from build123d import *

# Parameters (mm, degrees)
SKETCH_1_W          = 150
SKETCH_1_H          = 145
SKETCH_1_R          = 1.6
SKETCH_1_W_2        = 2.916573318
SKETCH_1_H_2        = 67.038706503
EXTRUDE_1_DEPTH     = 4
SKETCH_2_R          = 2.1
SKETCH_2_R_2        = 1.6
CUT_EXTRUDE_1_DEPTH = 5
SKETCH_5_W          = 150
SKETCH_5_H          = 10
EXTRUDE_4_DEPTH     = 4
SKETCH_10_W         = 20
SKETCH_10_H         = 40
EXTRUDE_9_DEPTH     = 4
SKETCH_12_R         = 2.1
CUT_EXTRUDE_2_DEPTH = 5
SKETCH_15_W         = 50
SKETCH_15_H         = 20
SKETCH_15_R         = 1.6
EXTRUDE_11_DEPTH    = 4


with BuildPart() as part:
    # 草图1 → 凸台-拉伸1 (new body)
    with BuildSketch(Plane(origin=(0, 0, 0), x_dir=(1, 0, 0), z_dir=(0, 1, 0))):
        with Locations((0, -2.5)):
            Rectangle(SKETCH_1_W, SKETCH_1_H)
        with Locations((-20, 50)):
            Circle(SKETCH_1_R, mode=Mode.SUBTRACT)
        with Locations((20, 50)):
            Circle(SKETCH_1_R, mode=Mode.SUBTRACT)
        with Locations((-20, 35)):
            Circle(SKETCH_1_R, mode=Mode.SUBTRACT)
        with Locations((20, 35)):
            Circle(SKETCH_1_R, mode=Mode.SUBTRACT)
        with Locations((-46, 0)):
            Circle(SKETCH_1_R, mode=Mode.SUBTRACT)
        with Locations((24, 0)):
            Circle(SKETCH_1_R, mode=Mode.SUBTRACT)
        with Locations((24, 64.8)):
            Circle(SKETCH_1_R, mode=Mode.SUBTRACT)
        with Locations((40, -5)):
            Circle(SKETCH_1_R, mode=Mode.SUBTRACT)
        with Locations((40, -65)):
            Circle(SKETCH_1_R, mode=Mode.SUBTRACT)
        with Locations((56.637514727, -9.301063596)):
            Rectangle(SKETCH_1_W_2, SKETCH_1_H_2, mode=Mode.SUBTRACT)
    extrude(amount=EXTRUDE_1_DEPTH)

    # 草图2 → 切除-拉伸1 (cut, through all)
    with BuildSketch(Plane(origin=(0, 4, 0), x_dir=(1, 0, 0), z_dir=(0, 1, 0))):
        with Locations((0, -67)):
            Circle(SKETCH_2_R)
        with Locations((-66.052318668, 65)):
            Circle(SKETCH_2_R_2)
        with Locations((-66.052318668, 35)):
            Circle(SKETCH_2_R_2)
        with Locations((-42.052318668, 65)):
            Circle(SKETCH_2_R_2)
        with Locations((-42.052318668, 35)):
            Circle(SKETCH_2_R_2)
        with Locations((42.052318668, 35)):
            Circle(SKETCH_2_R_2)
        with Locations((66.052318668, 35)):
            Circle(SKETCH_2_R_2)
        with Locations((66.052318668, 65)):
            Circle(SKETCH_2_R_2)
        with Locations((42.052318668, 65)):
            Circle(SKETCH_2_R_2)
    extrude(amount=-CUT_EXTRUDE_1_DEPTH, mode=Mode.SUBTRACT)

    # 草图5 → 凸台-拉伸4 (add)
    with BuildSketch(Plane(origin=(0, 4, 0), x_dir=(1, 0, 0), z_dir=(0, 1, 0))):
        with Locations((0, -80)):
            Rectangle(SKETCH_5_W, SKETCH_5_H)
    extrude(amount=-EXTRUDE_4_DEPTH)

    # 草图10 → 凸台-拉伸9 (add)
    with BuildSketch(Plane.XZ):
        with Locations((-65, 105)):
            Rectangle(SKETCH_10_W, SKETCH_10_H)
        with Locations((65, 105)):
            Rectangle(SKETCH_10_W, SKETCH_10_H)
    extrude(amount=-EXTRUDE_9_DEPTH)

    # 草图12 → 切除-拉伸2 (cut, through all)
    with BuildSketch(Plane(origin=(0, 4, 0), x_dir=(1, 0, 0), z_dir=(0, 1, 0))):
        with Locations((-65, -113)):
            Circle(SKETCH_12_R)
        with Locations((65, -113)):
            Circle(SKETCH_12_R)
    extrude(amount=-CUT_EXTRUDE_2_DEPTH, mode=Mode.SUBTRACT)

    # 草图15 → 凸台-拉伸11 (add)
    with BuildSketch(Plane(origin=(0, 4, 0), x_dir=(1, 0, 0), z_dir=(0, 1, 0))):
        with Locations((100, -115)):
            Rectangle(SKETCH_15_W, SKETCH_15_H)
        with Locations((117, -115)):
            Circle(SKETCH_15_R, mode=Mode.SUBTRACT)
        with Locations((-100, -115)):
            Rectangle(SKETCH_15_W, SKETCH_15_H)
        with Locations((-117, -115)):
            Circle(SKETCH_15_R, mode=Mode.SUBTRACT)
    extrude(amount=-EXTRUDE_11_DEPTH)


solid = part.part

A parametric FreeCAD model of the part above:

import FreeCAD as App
import Part
import Sketcher

doc = App.newDocument("Part")
body = doc.addObject("PartDesign::Body", "Body")

# Sketch on XZ plane
sketch1 = body.newObject("Sketcher::SketchObject", "Sketch")
sketch1.AttachmentSupport = (doc.getObject("XZ_Plane"), [""])
sketch1.MapMode = "FlatFace"
sketch1.addGeometry(Part.LineSegment(App.Vector(-75, -70, 0), App.Vector(-75, 75, 0)), False)
sketch1.addGeometry(Part.LineSegment(App.Vector(-75, 75, 0), App.Vector(75, 75, 0)), False)
sketch1.addGeometry(Part.LineSegment(App.Vector(75, 75, 0), App.Vector(75, -70, 0)), False)
sketch1.addGeometry(Part.LineSegment(App.Vector(75, -70, 0), App.Vector(-75, -70, 0)), False)
sketch1.addGeometry(Part.Circle(App.Vector(40, 65, 0), App.Vector(0, 0, 1), 1.6), False)
sketch1.addGeometry(Part.Circle(App.Vector(40, 5, 0), App.Vector(0, 0, 1), 1.6), False)
sketch1.addGeometry(Part.LineSegment(App.Vector(58.1, 42.8, 0), App.Vector(55.2, 42.8, 0)), False)
sketch1.addGeometry(Part.LineSegment(App.Vector(55.2, 42.8, 0), App.Vector(55.2, -24.2, 0)), False)
sketch1.addGeometry(Part.LineSegment(App.Vector(55.2, -24.2, 0), App.Vector(58.1, -24.2, 0)), False)
sketch1.addGeometry(Part.LineSegment(App.Vector(58.1, -24.2, 0), App.Vector(58.1, 42.8, 0)), False)
sketch1.addGeometry(Part.Circle(App.Vector(-46, 0, 0), App.Vector(0, 0, 1), 1.6), False)
sketch1.addGeometry(Part.Circle(App.Vector(-20, -35, 0), App.Vector(0, 0, 1), 1.6), False)
sketch1.addGeometry(Part.Circle(App.Vector(-20, -50, 0), App.Vector(0, 0, 1), 1.6), False)
sketch1.addGeometry(Part.Circle(App.Vector(24, 0, 0), App.Vector(0, 0, 1), 1.6), False)
sketch1.addGeometry(Part.Circle(App.Vector(20, -35, 0), App.Vector(0, 0, 1), 1.6), False)
sketch1.addGeometry(Part.Circle(App.Vector(20, -50, 0), App.Vector(0, 0, 1), 1.6), False)
sketch1.addGeometry(Part.Circle(App.Vector(24, -64.8, 0), App.Vector(0, 0, 1), 1.6), False)
sketch1.addConstraint(Sketcher.Constraint("Coincident", 0, 2, 1, 1))
sketch1.addConstraint(Sketcher.Constraint("Coincident", 1, 2, 2, 1))
sketch1.addConstraint(Sketcher.Constraint("Coincident", 2, 2, 3, 1))
sketch1.addConstraint(Sketcher.Constraint("Coincident", 3, 2, 0, 1))
sketch1.addConstraint(Sketcher.Constraint("Coincident", 6, 2, 7, 1))
sketch1.addConstraint(Sketcher.Constraint("Coincident", 7, 2, 8, 1))
sketch1.addConstraint(Sketcher.Constraint("Coincident", 8, 2, 9, 1))
sketch1.addConstraint(Sketcher.Constraint("Coincident", 9, 2, 6, 1))
sketch1.addConstraint(Sketcher.Constraint("Vertical", 0))
sketch1.addConstraint(Sketcher.Constraint("Horizontal", 1))
sketch1.addConstraint(Sketcher.Constraint("Vertical", 2))
sketch1.addConstraint(Sketcher.Constraint("Horizontal", 3))
sketch1.addConstraint(Sketcher.Constraint("Horizontal", 6))
sketch1.addConstraint(Sketcher.Constraint("Vertical", 7))
sketch1.addConstraint(Sketcher.Constraint("Horizontal", 8))
sketch1.addConstraint(Sketcher.Constraint("Vertical", 9))
sketch1.addConstraint(Sketcher.Constraint("Equal", 4, 5))
sketch1.addConstraint(Sketcher.Constraint("Equal", 5, 10))
sketch1.addConstraint(Sketcher.Constraint("Equal", 10, 11))
sketch1.addConstraint(Sketcher.Constraint("Equal", 11, 12))
sketch1.addConstraint(Sketcher.Constraint("Equal", 12, 13))
sketch1.addConstraint(Sketcher.Constraint("Equal", 13, 14))
sketch1.addConstraint(Sketcher.Constraint("Equal", 14, 15))
sketch1.addConstraint(Sketcher.Constraint("Equal", 15, 16))
sketch1.addConstraint(Sketcher.Constraint("Symmetric", 11, 3, 14, 3, -2))
sketch1.addConstraint(Sketcher.Constraint("Symmetric", 12, 3, 15, 3, -2))
sketch1.addConstraint(Sketcher.Constraint("PointOnObject", 10, 3, -1))
sketch1.addConstraint(Sketcher.Constraint("PointOnObject", 13, 3, -1))
sketch1.addConstraint(Sketcher.Constraint("Vertical", 4, 3, 5, 3))
sketch1.addConstraint(Sketcher.Constraint("Vertical", 11, 3, 12, 3))
sketch1.addConstraint(Sketcher.Constraint("Vertical", 13, 3, 16, 3))
sketch1.addConstraint(Sketcher.Constraint("Diameter", 4, 3.2))
sketch1.addConstraint(Sketcher.Constraint("DistanceX", 1, 1, 1, 2, 150.0))
sketch1.addConstraint(Sketcher.Constraint("DistanceY", 0, 1, 0, 2, 145.0))
sketch1.addConstraint(Sketcher.Constraint("DistanceX", -1, 1, 4, 3, 40.0))
sketch1.addConstraint(Sketcher.Constraint("DistanceY", -1, 1, 4, 3, 65.0))
sketch1.addConstraint(Sketcher.Constraint("DistanceY", -1, 1, 5, 3, 5.0))
sketch1.addConstraint(Sketcher.Constraint("DistanceX", 10, 3, -1, 1, 46.0))
sketch1.addConstraint(Sketcher.Constraint("DistanceX", 11, 3, -1, 1, 20.0))
sketch1.addConstraint(Sketcher.Constraint("DistanceY", 11, 3, -1, 1, 35.0))
sketch1.addConstraint(Sketcher.Constraint("DistanceY", 12, 3, -1, 1, 50.0))
sketch1.addConstraint(Sketcher.Constraint("DistanceX", -1, 1, 13, 3, 24.0))
sketch1.addConstraint(Sketcher.Constraint("DistanceX", 0, 2, -1, 1, 75.0))
sketch1.addConstraint(Sketcher.Constraint("DistanceY", -1, 1, 0, 2, 75.0))
sketch1.addConstraint(Sketcher.Constraint("DistanceY", 16, 3, -1, 1, 64.8))
sketch1.addConstraint(Sketcher.Constraint("DistanceX", -1, 1, 8, 2, 58.095801))
sketch1.addConstraint(Sketcher.Constraint("DistanceX", 6, 2, 6, 1, 2.916573))
sketch1.addConstraint(Sketcher.Constraint("DistanceY", 7, 2, 7, 1, 67.038707))
sketch1.addConstraint(Sketcher.Constraint("DistanceY", 7, 2, -1, 1, 24.21829))
pad1 = body.newObject("PartDesign::Pad", "Pad")
pad1.Profile = sketch1
pad1.Length = 4
pad1.Reversed = True

# Sketch on XZ plane
sketch2 = body.newObject("Sketcher::SketchObject", "Sketch001")
sketch2.AttachmentSupport = (doc.getObject("XZ_Plane"), [""])
sketch2.MapMode = "FlatFace"
sketch2.AttachmentOffset = App.Placement(App.Vector(0, 0, -4), App.Rotation())
sketch2.addGeometry(Part.Circle(App.Vector(0, 67, 0), App.Vector(0, 0, 1), 2.1), False)
sketch2.addGeometry(Part.Circle(App.Vector(-66.1, -65, 0), App.Vector(0, 0, 1), 1.6), False)
sketch2.addGeometry(Part.Circle(App.Vector(-66.1, -35, 0), App.Vector(0, 0, 1), 1.6), False)
sketch2.addGeometry(Part.Circle(App.Vector(-42.1, -65, 0), App.Vector(0, 0, 1), 1.6), False)
sketch2.addGeometry(Part.Circle(App.Vector(-42.1, -35, 0), App.Vector(0, 0, 1), 1.6), False)
sketch2.addGeometry(Part.Circle(App.Vector(42.1, -35, 0), App.Vector(0, 0, 1), 1.6), False)
sketch2.addGeometry(Part.Circle(App.Vector(66.1, -35, 0), App.Vector(0, 0, 1), 1.6), False)
sketch2.addGeometry(Part.Circle(App.Vector(66.1, -65, 0), App.Vector(0, 0, 1), 1.6), False)
sketch2.addGeometry(Part.Circle(App.Vector(42.1, -65, 0), App.Vector(0, 0, 1), 1.6), False)
sketch2.addConstraint(Sketcher.Constraint("Equal", 1, 2))
sketch2.addConstraint(Sketcher.Constraint("Equal", 2, 3))
sketch2.addConstraint(Sketcher.Constraint("Equal", 3, 4))
sketch2.addConstraint(Sketcher.Constraint("Equal", 4, 5))
sketch2.addConstraint(Sketcher.Constraint("Equal", 5, 6))
sketch2.addConstraint(Sketcher.Constraint("Equal", 6, 7))
sketch2.addConstraint(Sketcher.Constraint("Equal", 7, 8))
sketch2.addConstraint(Sketcher.Constraint("Symmetric", 4, 3, 5, 3, -2))
sketch2.addConstraint(Sketcher.Constraint("Symmetric", 2, 3, 6, 3, -2))
sketch2.addConstraint(Sketcher.Constraint("Symmetric", 1, 3, 7, 3, -2))
sketch2.addConstraint(Sketcher.Constraint("Symmetric", 3, 3, 8, 3, -2))
sketch2.addConstraint(Sketcher.Constraint("PointOnObject", 0, 3, -2))
sketch2.addConstraint(Sketcher.Constraint("Horizontal", 1, 3, 3, 3))
sketch2.addConstraint(Sketcher.Constraint("Horizontal", 2, 3, 4, 3))
sketch2.addConstraint(Sketcher.Constraint("Vertical", 1, 3, 2, 3))
sketch2.addConstraint(Sketcher.Constraint("Vertical", 3, 3, 4, 3))
sketch2.addConstraint(Sketcher.Constraint("Diameter", 0, 4.2))
sketch2.addConstraint(Sketcher.Constraint("Diameter", 1, 3.2))
sketch2.addConstraint(Sketcher.Constraint("DistanceY", -1, 1, 0, 3, 67.0))
sketch2.addConstraint(Sketcher.Constraint("DistanceY", 1, 3, -1, 1, 65.0))
sketch2.addConstraint(Sketcher.Constraint("DistanceY", 2, 3, -1, 1, 35.0))
sketch2.addConstraint(Sketcher.Constraint("DistanceX", 1, 3, 3, 3, 24.0))
sketch2.addConstraint(Sketcher.Constraint("DistanceX", 1, 3, -1, 1, 66.052319))
pocket1 = body.newObject("PartDesign::Pocket", "Pocket")
pocket1.Profile = sketch2
pocket1.Type = "ThroughAll"
pocket1.Reversed = True

# Sketch on XZ plane
sketch3 = body.newObject("Sketcher::SketchObject", "Sketch002")
sketch3.AttachmentSupport = (doc.getObject("XZ_Plane"), [""])
sketch3.MapMode = "FlatFace"
sketch3.AttachmentOffset = App.Placement(App.Vector(0, 0, -4), App.Rotation())
sketch3.addGeometry(Part.LineSegment(App.Vector(-75, 75, 0), App.Vector(-75, 85, 0)), False)
sketch3.addGeometry(Part.LineSegment(App.Vector(-75, 85, 0), App.Vector(75, 85, 0)), False)
sketch3.addGeometry(Part.LineSegment(App.Vector(75, 85, 0), App.Vector(75, 75, 0)), False)
sketch3.addGeometry(Part.LineSegment(App.Vector(75, 75, 0), App.Vector(-75, 75, 0)), False)
sketch3.addConstraint(Sketcher.Constraint("Coincident", 0, 2, 1, 1))
sketch3.addConstraint(Sketcher.Constraint("Coincident", 1, 2, 2, 1))
sketch3.addConstraint(Sketcher.Constraint("Coincident", 2, 2, 3, 1))
sketch3.addConstraint(Sketcher.Constraint("Coincident", 3, 2, 0, 1))
sketch3.addConstraint(Sketcher.Constraint("Vertical", 0))
sketch3.addConstraint(Sketcher.Constraint("Horizontal", 1))
sketch3.addConstraint(Sketcher.Constraint("Vertical", 2))
sketch3.addConstraint(Sketcher.Constraint("Horizontal", 3))
sketch3.addConstraint(Sketcher.Constraint("DistanceX", 1, 1, 1, 2, 150.0))
sketch3.addConstraint(Sketcher.Constraint("DistanceY", 0, 1, 0, 2, 10.0))
sketch3.addConstraint(Sketcher.Constraint("DistanceX", 0, 2, -1, 1, 75.0))
sketch3.addConstraint(Sketcher.Constraint("DistanceY", -1, 1, 0, 2, 85.0))
pad2 = body.newObject("PartDesign::Pad", "Pad001")
pad2.Profile = sketch3
pad2.Length = 4

# Sketch on XZ plane
sketch4 = body.newObject("Sketcher::SketchObject", "Sketch003")
sketch4.AttachmentSupport = (doc.getObject("XZ_Plane"), [""])
sketch4.MapMode = "FlatFace"
sketch4.addGeometry(Part.LineSegment(App.Vector(-75, 125, 0), App.Vector(-75, 85, 0)), False)
sketch4.addGeometry(Part.LineSegment(App.Vector(-75, 85, 0), App.Vector(-55, 85, 0)), False)
sketch4.addGeometry(Part.LineSegment(App.Vector(-55, 85, 0), App.Vector(-55, 125, 0)), False)
sketch4.addGeometry(Part.LineSegment(App.Vector(-55, 125, 0), App.Vector(-75, 125, 0)), False)
sketch4.addGeometry(Part.LineSegment(App.Vector(55, 125, 0), App.Vector(55, 85, 0)), False)
sketch4.addGeometry(Part.LineSegment(App.Vector(55, 85, 0), App.Vector(75, 85, 0)), False)
sketch4.addGeometry(Part.LineSegment(App.Vector(75, 85, 0), App.Vector(75, 125, 0)), False)
sketch4.addGeometry(Part.LineSegment(App.Vector(75, 125, 0), App.Vector(55, 125, 0)), False)
sketch4.addConstraint(Sketcher.Constraint("Coincident", 0, 2, 1, 1))
sketch4.addConstraint(Sketcher.Constraint("Coincident", 1, 2, 2, 1))
sketch4.addConstraint(Sketcher.Constraint("Coincident", 2, 2, 3, 1))
sketch4.addConstraint(Sketcher.Constraint("Coincident", 3, 2, 0, 1))
sketch4.addConstraint(Sketcher.Constraint("Coincident", 4, 2, 5, 1))
sketch4.addConstraint(Sketcher.Constraint("Coincident", 5, 2, 6, 1))
sketch4.addConstraint(Sketcher.Constraint("Coincident", 6, 2, 7, 1))
sketch4.addConstraint(Sketcher.Constraint("Coincident", 7, 2, 4, 1))
sketch4.addConstraint(Sketcher.Constraint("Vertical", 0))
sketch4.addConstraint(Sketcher.Constraint("Horizontal", 1))
sketch4.addConstraint(Sketcher.Constraint("Vertical", 2))
sketch4.addConstraint(Sketcher.Constraint("Horizontal", 3))
sketch4.addConstraint(Sketcher.Constraint("Vertical", 4))
sketch4.addConstraint(Sketcher.Constraint("Horizontal", 5))
sketch4.addConstraint(Sketcher.Constraint("Vertical", 6))
sketch4.addConstraint(Sketcher.Constraint("Horizontal", 7))
sketch4.addConstraint(Sketcher.Constraint("Symmetric", 1, 2, 4, 2, -2))
sketch4.addConstraint(Sketcher.Constraint("Symmetric", 3, 2, 6, 2, -2))
sketch4.addConstraint(Sketcher.Constraint("DistanceX", 1, 1, 1, 2, 20.0))
sketch4.addConstraint(Sketcher.Constraint("DistanceY", 0, 2, 0, 1, 40.0))
sketch4.addConstraint(Sketcher.Constraint("DistanceX", 0, 2, -1, 1, 75.0))
sketch4.addConstraint(Sketcher.Constraint("DistanceY", -1, 1, 0, 2, 85.0))
pad3 = body.newObject("PartDesign::Pad", "Pad002")
pad3.Profile = sketch4
pad3.Length = 4
pad3.Reversed = True

# Sketch on XZ plane
sketch5 = body.newObject("Sketcher::SketchObject", "Sketch004")
sketch5.AttachmentSupport = (doc.getObject("XZ_Plane"), [""])
sketch5.MapMode = "FlatFace"
sketch5.AttachmentOffset = App.Placement(App.Vector(0, 0, -4), App.Rotation())
sketch5.addGeometry(Part.Circle(App.Vector(-65, 113, 0), App.Vector(0, 0, 1), 2.1), False)
sketch5.addGeometry(Part.Circle(App.Vector(65, 113, 0), App.Vector(0, 0, 1), 2.1), False)
sketch5.addConstraint(Sketcher.Constraint("Equal", 0, 1))
sketch5.addConstraint(Sketcher.Constraint("Symmetric", 0, 3, 1, 3, -2))
sketch5.addConstraint(Sketcher.Constraint("Diameter", 0, 4.2))
sketch5.addConstraint(Sketcher.Constraint("DistanceX", 0, 3, -1, 1, 65.0))
sketch5.addConstraint(Sketcher.Constraint("DistanceY", -1, 1, 0, 3, 113.0))
pocket2 = body.newObject("PartDesign::Pocket", "Pocket001")
pocket2.Profile = sketch5
pocket2.Type = "ThroughAll"
pocket2.Reversed = True

# Sketch on XZ plane
sketch6 = body.newObject("Sketcher::SketchObject", "Sketch005")
sketch6.AttachmentSupport = (doc.getObject("XZ_Plane"), [""])
sketch6.MapMode = "FlatFace"
sketch6.AttachmentOffset = App.Placement(App.Vector(0, 0, -4), App.Rotation())
sketch6.addGeometry(Part.LineSegment(App.Vector(75, 105, 0), App.Vector(75, 125, 0)), False)
sketch6.addGeometry(Part.LineSegment(App.Vector(75, 125, 0), App.Vector(125, 125, 0)), False)
sketch6.addGeometry(Part.LineSegment(App.Vector(125, 125, 0), App.Vector(125, 105, 0)), False)
sketch6.addGeometry(Part.LineSegment(App.Vector(125, 105, 0), App.Vector(75, 105, 0)), False)
sketch6.addGeometry(Part.Circle(App.Vector(117, 115, 0), App.Vector(0, 0, 1), 1.6), False)
sketch6.addGeometry(Part.LineSegment(App.Vector(-125, 105, 0), App.Vector(-125, 125, 0)), False)
sketch6.addGeometry(Part.LineSegment(App.Vector(-125, 125, 0), App.Vector(-75, 125, 0)), False)
sketch6.addGeometry(Part.LineSegment(App.Vector(-75, 125, 0), App.Vector(-75, 105, 0)), False)
sketch6.addGeometry(Part.LineSegment(App.Vector(-75, 105, 0), App.Vector(-125, 105, 0)), False)
sketch6.addGeometry(Part.Circle(App.Vector(-117, 115, 0), App.Vector(0, 0, 1), 1.6), False)
sketch6.addConstraint(Sketcher.Constraint("Coincident", 0, 2, 1, 1))
sketch6.addConstraint(Sketcher.Constraint("Coincident", 1, 2, 2, 1))
sketch6.addConstraint(Sketcher.Constraint("Coincident", 2, 2, 3, 1))
sketch6.addConstraint(Sketcher.Constraint("Coincident", 3, 2, 0, 1))
sketch6.addConstraint(Sketcher.Constraint("Coincident", 5, 2, 6, 1))
sketch6.addConstraint(Sketcher.Constraint("Coincident", 6, 2, 7, 1))
sketch6.addConstraint(Sketcher.Constraint("Coincident", 7, 2, 8, 1))
sketch6.addConstraint(Sketcher.Constraint("Coincident", 8, 2, 5, 1))
sketch6.addConstraint(Sketcher.Constraint("Vertical", 0))
sketch6.addConstraint(Sketcher.Constraint("Horizontal", 1))
sketch6.addConstraint(Sketcher.Constraint("Vertical", 2))
sketch6.addConstraint(Sketcher.Constraint("Horizontal", 3))
sketch6.addConstraint(Sketcher.Constraint("Vertical", 5))
sketch6.addConstraint(Sketcher.Constraint("Horizontal", 6))
sketch6.addConstraint(Sketcher.Constraint("Vertical", 7))
sketch6.addConstraint(Sketcher.Constraint("Horizontal", 8))
sketch6.addConstraint(Sketcher.Constraint("Equal", 4, 9))
sketch6.addConstraint(Sketcher.Constraint("Symmetric", 4, 3, 9, 3, -2))
sketch6.addConstraint(Sketcher.Constraint("Symmetric", 1, 2, 5, 2, -2))
sketch6.addConstraint(Sketcher.Constraint("Symmetric", 3, 2, 7, 2, -2))
sketch6.addConstraint(Sketcher.Constraint("Diameter", 4, 3.2))
sketch6.addConstraint(Sketcher.Constraint("DistanceX", 1, 1, 1, 2, 50.0))
sketch6.addConstraint(Sketcher.Constraint("DistanceY", 0, 1, 0, 2, 20.0))
sketch6.addConstraint(Sketcher.Constraint("DistanceX", -1, 1, 4, 3, 117.0))
sketch6.addConstraint(Sketcher.Constraint("DistanceY", -1, 1, 4, 3, 115.0))
sketch6.addConstraint(Sketcher.Constraint("DistanceX", -1, 1, 0, 2, 75.0))
sketch6.addConstraint(Sketcher.Constraint("DistanceY", -1, 1, 0, 2, 125.0))
pad4 = body.newObject("PartDesign::Pad", "Pad003")
pad4.Profile = sketch6
pad4.Length = 4

doc.recompute()
